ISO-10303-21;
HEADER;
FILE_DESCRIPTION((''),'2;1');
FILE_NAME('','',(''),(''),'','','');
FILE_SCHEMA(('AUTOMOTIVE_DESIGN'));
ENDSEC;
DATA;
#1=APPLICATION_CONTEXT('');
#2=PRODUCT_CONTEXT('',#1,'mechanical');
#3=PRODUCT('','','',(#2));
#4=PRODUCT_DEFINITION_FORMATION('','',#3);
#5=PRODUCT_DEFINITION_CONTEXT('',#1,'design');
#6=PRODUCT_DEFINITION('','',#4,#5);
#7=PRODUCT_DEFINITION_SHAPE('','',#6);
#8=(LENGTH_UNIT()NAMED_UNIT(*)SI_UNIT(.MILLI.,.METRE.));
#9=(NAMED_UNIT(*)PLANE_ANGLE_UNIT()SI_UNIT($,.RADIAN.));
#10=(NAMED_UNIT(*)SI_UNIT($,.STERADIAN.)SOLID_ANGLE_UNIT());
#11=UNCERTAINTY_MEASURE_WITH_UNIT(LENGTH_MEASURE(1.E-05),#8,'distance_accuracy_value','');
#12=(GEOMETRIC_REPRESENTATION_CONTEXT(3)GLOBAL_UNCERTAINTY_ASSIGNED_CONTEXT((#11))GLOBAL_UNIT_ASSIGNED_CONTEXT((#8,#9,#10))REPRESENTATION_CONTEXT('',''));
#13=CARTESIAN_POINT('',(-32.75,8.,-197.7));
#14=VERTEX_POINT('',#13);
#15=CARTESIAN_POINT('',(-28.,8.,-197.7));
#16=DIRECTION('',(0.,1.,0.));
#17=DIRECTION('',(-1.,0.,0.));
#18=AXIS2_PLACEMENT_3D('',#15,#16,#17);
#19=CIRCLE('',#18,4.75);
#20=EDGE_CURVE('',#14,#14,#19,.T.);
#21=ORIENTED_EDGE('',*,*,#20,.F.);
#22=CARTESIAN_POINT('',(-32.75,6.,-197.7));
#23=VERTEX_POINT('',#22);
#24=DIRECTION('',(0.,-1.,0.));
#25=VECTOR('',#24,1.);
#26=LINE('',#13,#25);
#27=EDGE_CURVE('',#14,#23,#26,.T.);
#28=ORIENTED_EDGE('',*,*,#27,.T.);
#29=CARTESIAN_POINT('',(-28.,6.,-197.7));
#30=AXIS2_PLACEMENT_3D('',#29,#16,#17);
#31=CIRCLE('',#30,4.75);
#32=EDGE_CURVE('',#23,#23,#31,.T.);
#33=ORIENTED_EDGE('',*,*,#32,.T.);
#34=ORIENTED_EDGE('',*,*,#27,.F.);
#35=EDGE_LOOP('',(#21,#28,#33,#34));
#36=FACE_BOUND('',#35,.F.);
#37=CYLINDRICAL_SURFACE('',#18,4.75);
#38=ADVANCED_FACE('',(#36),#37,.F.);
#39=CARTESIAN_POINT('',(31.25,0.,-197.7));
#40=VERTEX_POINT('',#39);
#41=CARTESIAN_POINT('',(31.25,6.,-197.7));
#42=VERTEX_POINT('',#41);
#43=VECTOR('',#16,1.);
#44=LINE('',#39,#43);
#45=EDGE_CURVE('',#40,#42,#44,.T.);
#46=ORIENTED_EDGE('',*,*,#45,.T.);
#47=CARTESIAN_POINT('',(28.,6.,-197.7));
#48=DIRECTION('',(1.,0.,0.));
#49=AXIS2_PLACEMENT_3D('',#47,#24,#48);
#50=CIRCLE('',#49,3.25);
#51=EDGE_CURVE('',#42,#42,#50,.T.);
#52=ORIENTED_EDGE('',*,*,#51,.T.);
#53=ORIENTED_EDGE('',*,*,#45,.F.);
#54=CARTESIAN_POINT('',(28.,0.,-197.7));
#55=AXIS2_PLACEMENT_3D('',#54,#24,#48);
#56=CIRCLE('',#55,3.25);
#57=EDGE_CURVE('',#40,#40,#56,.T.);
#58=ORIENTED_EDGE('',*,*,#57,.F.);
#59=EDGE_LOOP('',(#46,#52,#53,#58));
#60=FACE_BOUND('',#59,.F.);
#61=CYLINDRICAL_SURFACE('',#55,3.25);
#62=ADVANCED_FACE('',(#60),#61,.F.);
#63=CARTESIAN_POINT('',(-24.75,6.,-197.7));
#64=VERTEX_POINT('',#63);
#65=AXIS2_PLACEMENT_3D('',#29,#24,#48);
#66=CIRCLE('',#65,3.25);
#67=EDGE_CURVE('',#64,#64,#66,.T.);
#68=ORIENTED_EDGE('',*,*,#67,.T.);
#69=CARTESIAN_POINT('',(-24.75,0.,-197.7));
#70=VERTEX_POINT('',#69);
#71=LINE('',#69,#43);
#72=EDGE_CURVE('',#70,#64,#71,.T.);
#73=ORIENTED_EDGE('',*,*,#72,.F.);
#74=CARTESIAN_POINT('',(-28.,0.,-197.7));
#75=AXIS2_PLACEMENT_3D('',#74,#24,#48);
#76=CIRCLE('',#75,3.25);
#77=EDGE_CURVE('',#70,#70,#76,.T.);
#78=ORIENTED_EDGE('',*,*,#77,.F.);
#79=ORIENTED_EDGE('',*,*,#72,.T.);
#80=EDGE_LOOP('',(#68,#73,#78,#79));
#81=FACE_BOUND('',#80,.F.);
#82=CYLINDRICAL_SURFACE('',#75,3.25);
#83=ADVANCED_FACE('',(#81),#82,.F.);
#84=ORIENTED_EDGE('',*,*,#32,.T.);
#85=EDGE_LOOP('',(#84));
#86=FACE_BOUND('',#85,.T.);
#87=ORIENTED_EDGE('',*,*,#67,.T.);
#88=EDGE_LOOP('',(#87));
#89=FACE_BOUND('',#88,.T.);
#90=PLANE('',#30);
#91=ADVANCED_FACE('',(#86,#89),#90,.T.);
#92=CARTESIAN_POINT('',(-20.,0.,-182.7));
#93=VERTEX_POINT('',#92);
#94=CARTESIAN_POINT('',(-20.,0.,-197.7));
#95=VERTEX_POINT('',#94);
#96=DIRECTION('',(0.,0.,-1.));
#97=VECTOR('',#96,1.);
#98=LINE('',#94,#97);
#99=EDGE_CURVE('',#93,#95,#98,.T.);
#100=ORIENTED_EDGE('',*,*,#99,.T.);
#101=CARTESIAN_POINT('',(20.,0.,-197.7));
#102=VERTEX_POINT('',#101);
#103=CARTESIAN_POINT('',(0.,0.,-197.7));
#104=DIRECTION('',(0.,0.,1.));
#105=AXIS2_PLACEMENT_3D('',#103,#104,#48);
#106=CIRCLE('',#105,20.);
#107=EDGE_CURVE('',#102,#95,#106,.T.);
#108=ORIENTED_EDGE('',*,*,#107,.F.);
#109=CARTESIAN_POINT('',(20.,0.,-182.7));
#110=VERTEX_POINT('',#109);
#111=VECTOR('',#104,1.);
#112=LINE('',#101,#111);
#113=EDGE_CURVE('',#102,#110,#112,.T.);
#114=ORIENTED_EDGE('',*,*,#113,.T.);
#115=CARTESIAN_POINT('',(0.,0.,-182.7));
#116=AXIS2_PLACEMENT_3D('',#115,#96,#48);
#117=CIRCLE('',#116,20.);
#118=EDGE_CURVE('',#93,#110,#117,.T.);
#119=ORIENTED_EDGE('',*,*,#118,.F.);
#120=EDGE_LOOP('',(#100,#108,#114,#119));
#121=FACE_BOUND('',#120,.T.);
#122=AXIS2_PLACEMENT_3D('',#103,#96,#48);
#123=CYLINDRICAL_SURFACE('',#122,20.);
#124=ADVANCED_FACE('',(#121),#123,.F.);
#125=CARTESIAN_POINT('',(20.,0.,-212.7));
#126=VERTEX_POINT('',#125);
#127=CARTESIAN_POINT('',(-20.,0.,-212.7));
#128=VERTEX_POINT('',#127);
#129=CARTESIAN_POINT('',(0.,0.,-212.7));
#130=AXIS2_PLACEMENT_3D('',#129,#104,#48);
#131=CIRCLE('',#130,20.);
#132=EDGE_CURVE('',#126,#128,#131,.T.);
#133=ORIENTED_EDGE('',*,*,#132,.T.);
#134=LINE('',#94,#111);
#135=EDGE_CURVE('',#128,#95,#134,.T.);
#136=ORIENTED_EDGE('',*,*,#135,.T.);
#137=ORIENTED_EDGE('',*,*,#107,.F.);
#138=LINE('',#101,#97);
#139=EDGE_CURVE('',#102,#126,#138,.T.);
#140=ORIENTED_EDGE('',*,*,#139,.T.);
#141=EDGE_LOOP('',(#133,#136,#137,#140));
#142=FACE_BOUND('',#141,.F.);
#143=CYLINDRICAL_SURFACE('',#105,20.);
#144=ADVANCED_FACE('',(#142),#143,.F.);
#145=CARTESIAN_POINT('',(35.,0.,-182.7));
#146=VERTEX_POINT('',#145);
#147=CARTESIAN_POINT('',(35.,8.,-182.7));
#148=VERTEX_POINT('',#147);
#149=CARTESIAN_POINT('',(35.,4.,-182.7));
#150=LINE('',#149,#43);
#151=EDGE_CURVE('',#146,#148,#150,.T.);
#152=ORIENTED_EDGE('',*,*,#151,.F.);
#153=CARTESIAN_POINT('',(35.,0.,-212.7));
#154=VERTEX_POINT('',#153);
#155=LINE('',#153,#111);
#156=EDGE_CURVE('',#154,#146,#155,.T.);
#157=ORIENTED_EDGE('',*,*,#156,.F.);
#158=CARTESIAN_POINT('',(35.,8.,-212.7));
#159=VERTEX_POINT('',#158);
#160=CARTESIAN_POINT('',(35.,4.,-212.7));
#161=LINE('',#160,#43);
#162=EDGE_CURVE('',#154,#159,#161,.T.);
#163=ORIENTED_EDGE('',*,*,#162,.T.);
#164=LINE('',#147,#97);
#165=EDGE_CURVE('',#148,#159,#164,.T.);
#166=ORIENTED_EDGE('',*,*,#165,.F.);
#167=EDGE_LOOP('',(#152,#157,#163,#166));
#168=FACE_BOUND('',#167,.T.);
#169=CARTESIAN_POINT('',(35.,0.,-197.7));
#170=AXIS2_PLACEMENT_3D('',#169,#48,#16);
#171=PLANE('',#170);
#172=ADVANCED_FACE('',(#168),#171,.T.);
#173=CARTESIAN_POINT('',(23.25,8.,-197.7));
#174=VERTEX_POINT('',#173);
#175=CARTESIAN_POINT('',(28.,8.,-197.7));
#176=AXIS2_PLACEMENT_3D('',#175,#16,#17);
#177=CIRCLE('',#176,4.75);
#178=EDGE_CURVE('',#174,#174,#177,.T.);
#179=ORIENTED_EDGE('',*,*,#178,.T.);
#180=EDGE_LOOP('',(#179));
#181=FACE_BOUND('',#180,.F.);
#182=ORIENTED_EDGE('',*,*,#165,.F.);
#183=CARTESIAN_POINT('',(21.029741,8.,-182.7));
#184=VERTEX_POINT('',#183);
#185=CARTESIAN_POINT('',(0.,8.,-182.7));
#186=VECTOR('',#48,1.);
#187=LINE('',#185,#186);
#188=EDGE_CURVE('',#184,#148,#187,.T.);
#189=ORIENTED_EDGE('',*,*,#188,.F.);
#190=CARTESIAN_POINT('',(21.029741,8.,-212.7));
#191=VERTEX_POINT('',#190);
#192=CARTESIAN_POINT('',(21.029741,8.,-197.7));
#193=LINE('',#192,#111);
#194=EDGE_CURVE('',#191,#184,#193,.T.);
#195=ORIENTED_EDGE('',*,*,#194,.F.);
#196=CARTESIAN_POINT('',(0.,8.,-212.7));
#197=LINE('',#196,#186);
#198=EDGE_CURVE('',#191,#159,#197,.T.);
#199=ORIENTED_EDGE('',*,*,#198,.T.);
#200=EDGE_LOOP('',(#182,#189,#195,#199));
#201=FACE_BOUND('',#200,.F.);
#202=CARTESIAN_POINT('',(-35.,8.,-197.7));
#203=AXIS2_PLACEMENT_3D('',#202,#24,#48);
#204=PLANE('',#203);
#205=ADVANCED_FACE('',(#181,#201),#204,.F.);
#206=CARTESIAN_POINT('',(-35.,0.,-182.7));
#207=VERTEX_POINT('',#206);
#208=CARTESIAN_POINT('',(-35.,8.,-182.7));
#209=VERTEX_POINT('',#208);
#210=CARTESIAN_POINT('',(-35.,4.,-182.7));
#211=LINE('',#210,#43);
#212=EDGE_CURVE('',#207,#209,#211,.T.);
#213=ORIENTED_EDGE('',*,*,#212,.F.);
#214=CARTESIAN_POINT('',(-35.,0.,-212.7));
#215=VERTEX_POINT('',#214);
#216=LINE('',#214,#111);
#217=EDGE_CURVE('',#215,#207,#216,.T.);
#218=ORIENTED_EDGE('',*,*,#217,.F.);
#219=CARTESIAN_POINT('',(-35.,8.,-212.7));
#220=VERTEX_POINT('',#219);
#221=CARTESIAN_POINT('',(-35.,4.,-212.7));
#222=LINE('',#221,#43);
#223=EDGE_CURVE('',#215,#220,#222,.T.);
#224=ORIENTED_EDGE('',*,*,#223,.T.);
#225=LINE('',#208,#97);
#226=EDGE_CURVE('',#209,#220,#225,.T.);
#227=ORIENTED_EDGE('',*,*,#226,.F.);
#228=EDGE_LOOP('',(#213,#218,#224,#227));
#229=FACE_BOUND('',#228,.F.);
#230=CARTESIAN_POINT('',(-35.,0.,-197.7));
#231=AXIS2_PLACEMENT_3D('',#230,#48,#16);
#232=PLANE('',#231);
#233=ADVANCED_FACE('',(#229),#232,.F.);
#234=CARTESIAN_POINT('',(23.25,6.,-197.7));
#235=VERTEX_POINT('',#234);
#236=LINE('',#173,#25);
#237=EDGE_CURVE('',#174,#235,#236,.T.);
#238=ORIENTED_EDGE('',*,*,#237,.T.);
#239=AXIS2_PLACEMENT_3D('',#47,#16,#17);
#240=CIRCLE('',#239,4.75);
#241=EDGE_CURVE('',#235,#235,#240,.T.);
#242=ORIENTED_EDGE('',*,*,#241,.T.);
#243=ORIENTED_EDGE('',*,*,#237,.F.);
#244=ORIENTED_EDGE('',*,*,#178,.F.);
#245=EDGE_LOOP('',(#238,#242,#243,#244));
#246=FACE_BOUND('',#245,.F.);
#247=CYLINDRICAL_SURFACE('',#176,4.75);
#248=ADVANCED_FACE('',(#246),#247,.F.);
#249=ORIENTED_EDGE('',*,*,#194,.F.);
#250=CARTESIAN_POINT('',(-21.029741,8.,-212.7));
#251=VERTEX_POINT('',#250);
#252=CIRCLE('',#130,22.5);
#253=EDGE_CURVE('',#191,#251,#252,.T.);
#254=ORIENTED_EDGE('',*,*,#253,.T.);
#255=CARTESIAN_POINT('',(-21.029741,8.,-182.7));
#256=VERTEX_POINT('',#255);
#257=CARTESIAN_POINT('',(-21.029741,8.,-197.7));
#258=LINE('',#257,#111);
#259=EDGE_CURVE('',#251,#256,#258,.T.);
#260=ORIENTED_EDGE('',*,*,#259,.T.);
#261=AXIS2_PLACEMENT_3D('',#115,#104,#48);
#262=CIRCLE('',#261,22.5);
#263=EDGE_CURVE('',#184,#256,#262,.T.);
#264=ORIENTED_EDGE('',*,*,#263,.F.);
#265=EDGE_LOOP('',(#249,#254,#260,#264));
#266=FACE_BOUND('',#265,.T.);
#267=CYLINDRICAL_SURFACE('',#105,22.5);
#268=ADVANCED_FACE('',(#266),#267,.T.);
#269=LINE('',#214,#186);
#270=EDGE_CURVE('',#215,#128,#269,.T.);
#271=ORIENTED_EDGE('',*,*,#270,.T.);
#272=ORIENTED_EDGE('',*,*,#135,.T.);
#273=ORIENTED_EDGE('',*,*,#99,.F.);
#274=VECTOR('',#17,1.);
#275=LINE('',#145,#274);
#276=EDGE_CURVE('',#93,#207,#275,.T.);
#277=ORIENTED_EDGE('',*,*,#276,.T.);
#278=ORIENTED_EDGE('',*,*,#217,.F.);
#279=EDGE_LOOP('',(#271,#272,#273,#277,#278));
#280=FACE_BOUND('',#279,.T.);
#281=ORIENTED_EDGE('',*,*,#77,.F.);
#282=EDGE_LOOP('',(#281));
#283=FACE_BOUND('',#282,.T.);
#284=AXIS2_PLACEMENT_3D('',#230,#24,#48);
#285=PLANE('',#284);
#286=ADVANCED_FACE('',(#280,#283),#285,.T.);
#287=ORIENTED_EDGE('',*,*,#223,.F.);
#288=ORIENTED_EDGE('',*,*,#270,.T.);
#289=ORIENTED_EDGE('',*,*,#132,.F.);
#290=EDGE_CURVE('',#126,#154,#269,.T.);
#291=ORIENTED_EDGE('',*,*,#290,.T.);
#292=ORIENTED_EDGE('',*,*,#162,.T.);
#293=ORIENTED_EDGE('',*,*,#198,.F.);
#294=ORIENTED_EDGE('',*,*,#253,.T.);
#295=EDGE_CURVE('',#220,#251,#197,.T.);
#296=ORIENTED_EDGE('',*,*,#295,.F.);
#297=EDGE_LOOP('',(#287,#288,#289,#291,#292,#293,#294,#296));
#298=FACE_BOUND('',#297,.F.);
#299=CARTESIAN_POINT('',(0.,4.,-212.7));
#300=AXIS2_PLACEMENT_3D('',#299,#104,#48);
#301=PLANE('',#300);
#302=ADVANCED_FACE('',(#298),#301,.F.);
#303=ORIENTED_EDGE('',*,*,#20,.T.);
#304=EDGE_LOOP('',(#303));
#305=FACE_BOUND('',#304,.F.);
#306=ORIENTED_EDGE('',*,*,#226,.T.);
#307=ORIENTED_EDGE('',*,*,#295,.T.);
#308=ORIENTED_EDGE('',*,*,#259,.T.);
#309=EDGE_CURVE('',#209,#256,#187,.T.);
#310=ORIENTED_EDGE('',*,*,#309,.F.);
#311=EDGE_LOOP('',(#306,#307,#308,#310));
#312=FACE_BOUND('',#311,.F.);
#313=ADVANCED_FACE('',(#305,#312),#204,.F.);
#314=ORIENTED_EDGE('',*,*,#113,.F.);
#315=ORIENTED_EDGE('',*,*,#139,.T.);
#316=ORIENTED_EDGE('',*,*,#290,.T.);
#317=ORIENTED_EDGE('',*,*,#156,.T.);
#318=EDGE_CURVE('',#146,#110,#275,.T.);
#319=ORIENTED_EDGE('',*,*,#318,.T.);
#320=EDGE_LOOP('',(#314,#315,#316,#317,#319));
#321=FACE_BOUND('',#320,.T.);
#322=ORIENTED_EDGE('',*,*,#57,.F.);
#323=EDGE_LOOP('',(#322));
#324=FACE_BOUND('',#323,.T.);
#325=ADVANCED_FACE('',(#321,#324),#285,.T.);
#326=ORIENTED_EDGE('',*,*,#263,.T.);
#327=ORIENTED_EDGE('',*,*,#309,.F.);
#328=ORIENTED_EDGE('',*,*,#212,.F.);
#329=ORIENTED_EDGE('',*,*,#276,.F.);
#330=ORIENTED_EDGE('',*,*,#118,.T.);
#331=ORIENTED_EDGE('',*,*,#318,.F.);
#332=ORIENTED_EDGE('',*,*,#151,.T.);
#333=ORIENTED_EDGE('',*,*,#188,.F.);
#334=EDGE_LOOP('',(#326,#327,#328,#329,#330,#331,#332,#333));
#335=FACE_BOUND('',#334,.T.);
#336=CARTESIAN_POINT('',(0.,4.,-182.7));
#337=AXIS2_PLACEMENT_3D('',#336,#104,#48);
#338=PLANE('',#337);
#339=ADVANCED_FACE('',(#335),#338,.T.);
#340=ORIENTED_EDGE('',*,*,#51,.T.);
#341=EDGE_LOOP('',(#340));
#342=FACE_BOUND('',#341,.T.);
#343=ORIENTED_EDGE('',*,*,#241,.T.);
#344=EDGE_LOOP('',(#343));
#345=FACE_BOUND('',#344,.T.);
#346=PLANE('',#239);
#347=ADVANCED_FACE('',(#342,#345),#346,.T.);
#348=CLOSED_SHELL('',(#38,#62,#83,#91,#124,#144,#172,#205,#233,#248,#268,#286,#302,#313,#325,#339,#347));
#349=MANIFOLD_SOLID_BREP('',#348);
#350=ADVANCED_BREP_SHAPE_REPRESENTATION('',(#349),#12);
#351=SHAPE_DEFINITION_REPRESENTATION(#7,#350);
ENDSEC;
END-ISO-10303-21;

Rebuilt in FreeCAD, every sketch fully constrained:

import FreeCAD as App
import Part
import Sketcher
from FreeCAD import Vector

doc = App.newDocument("Part")
body = doc.addObject("PartDesign::Body", "Body")

# Sketch on XY plane
sketch1 = doc.addObject("Sketcher::SketchObject", "Sketch")
body.addObject(sketch1)
sketch1.AttachmentSupport = (doc.XY_Plane, [""])
sketch1.MapMode = "FlatFace"
sketch1.addGeometry(Part.Circle(Vector(0, 0, 0), Vector(0, 0, 1), 22), False)
sketch1.addConstraint([
    Sketcher.Constraint("Coincident", 0, 3, -1, 1),
    Sketcher.Constraint("Diameter", 0, 45.0),
])
pad1 = doc.addObject("PartDesign::Pad", "Pad")
body.addObject(pad1)
pad1.Profile = sketch1
pad1.Length = 30
pad1.Midplane = True

# Sketch on XY plane
sketch2 = doc.addObject("Sketcher::SketchObject", "Sketch001")
body.addObject(sketch2)
sketch2.AttachmentSupport = (doc.XY_Plane, [""])
sketch2.MapMode = "FlatFace"
sketch2.addGeometry([
    Part.LineSegment(Vector(-22, 0, 0), Vector(-22, -22, 0)),
    Part.LineSegment(Vector(-22, -22, 0), Vector(22, -22, 0)),
    Part.LineSegment(Vector(22, -22, 0), Vector(22, 0, 0)),
    Part.LineSegment(Vector(22, 0, 0), Vector(-22, 0, 0)),
], False)
sketch2.addConstraint([
    Sketcher.Constraint("Coincident", 0, 2, 1, 1),
    Sketcher.Constraint("Coincident", 1, 2, 2, 1),
    Sketcher.Constraint("Coincident", 2, 2, 3, 1),
    Sketcher.Constraint("Coincident", 3, 2, 0, 1),
    Sketcher.Constraint("Vertical", 0),
    Sketcher.Constraint("Horizontal", 1),
    Sketcher.Constraint("Vertical", 2),
    Sketcher.Constraint("Horizontal", 3),
    Sketcher.Constraint("Symmetric", 2, 2, 3, 2, -1, 1),
    Sketcher.Constraint("DistanceX", 1, 1, 1, 2, 45.0),
    Sketcher.Constraint("DistanceY", 0, 2, 0, 1, 22.5),
])
pocket1 = doc.addObject("PartDesign::Pocket", "Pocket")
body.addObject(pocket1)
pocket1.Profile = sketch2
pocket1.Type = "ThroughAll"
pocket1.Midplane = True

# Sketch on XY plane
sketch3 = doc.addObject("Sketcher::SketchObject", "Sketch002")
body.addObject(sketch3)
sketch3.AttachmentSupport = (doc.XY_Plane, [""])
sketch3.MapMode = "FlatFace"
sketch3.addGeometry([
    Part.LineSegment(Vector(-35, 8, 0), Vector(-35, 0, 0)),
    Part.LineSegment(Vector(-35, 0, 0), Vector(35, 0, 0)),
    Part.LineSegment(Vector(35, 0, 0), Vector(35, 8, 0)),
    Part.LineSegment(Vector(35, 8, 0), Vector(-35, 8, 0)),
], False)
sketch3.addConstraint([
    Sketcher.Constraint("Coincident", 0, 2, 1, 1),
    Sketcher.Constraint("Coincident", 1, 2, 2, 1),
    Sketcher.Constraint("Coincident", 2, 2, 3, 1),
    Sketcher.Constraint("Coincident", 3, 2, 0, 1),
    Sketcher.Constraint("Vertical", 0),
    Sketcher.Constraint("Horizontal", 1),
    Sketcher.Constraint("Vertical", 2),
    Sketcher.Constraint("Horizontal", 3),
    Sketcher.Constraint("Symmetric", 0, 2, 1, 2, -1, 1),
    Sketcher.Constraint("DistanceX", 1, 1, 1, 2, 70.0),
    Sketcher.Constraint("DistanceY", 0, 2, 0, 1, 8.0),
])
pad2 = doc.addObject("PartDesign::Pad", "Pad001")
body.addObject(pad2)
pad2.Profile = sketch3
pad2.Length = 30
pad2.Midplane = True

# Sketch on XY plane
sketch4 = doc.addObject("Sketcher::SketchObject", "Sketch003")
body.addObject(sketch4)
sketch4.AttachmentSupport = (doc.XY_Plane, [""])
sketch4.MapMode = "FlatFace"
sketch4.addGeometry(Part.Circle(Vector(0, 0, 0), Vector(0, 0, 1), 20), False)
sketch4.addConstraint([
    Sketcher.Constraint("Coincident", 0, 3, -1, 1),
    Sketcher.Constraint("Diameter", 0, 40.0),
])
pocket2 = doc.addObject("PartDesign::Pocket", "Pocket001")
body.addObject(pocket2)
pocket2.Profile = sketch4
pocket2.Type = "ThroughAll"
pocket2.Midplane = True

# Sketch on XZ plane
sketch5 = doc.addObject("Sketcher::SketchObject", "Sketch004")
body.addObject(sketch5)
sketch5.AttachmentSupport = (doc.XZ_Plane, [""])
sketch5.MapMode = "FlatFace"
sketch5.addGeometry([
    Part.Circle(Vector(28, 0, 0), Vector(0, 0, 1), 3.2),
    Part.Circle(Vector(-28, 0, 0), Vector(0, 0, 1), 3.2),
], False)
sketch5.addConstraint([
    Sketcher.Constraint("Equal", 0, 1),
    Sketcher.Constraint("Symmetric", 0, 3, 1, 3, -1, 1),
    Sketcher.Constraint("PointOnObject", 0, 3, -1),
    Sketcher.Constraint("Diameter", 0, 6.5),
    Sketcher.Constraint("DistanceX", -1, 1, 0, 3, 28.0),
])
pocket3 = doc.addObject("PartDesign::Pocket", "Pocket002")
body.addObject(pocket3)
pocket3.Profile = sketch5
pocket3.Type = "ThroughAll"

# Sketch on XZ plane
sketch6 = doc.addObject("Sketcher::SketchObject", "Sketch005")
body.addObject(sketch6)
sketch6.AttachmentSupport = (doc.XZ_Plane, [""])
sketch6.MapMode = "FlatFace"
sketch6.AttachmentOffset = App.Placement(Vector(0, 0, -8), App.Rotation())
sketch6.addGeometry([
    Part.Circle(Vector(-28, 0, 0), Vector(0, 0, 1), 4.8),
    Part.Circle(Vector(28, 0, 0), Vector(0, 0, 1), 4.8),
], False)
sketch6.addConstraint([
    Sketcher.Constraint("Equal", 0, 1),
    Sketcher.Constraint("Symmetric", 0, 3, 1, 3, -1, 1),
    Sketcher.Constraint("PointOnObject", 0, 3, -1),
    Sketcher.Constraint("Diameter", 0, 9.5),
    Sketcher.Constraint("DistanceX", 0, 3, -1, 1, 28.0),
])
pocket4 = doc.addObject("PartDesign::Pocket", "Pocket003")
body.addObject(pocket4)
pocket4.Profile = sketch6
pocket4.Length = 2
pocket4.Reversed = True
body2 = doc.addObject("PartDesign::Body", "Body001")
doc.recompute()

body.Placement = App.Placement(Vector(0, 0, -197.7), App.Rotation(Vector(0, 0, 1), 0))
boolean = doc.addObject("PartDesign::Boolean", "Boolean")
body2.addObject(boolean)
boolean.Type = "Fuse"
boolean.addObjects([body])

doc.recompute()
